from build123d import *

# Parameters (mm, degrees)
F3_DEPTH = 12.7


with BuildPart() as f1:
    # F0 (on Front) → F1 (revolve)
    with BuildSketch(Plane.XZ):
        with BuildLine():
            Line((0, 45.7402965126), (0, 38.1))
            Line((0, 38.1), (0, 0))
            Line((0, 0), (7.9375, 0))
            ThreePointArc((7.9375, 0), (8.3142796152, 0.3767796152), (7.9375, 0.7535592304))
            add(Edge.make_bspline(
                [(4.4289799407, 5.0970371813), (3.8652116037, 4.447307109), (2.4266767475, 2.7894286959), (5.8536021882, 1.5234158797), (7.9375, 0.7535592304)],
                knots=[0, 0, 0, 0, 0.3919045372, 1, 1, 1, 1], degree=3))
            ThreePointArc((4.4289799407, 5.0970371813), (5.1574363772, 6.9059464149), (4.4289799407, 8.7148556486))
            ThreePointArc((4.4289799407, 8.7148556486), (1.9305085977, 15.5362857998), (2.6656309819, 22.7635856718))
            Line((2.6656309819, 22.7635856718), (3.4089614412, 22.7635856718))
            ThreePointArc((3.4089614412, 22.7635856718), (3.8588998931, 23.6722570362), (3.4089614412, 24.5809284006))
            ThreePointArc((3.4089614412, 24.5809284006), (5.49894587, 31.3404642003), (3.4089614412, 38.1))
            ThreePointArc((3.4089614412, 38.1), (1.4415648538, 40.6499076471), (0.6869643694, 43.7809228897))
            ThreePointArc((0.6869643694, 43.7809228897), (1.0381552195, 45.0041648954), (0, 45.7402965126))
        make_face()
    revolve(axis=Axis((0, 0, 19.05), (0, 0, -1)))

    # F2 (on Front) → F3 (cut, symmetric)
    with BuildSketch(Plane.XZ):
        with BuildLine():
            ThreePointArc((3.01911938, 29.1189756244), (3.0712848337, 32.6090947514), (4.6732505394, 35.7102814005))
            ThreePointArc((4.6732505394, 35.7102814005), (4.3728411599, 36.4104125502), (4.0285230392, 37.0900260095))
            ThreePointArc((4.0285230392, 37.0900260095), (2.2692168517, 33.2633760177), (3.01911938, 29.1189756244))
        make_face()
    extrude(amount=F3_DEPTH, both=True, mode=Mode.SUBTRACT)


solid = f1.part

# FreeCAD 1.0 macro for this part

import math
import FreeCAD as App
import Part
import Sketcher

V = App.Vector
Q = App.Units.Quantity

doc = App.newDocument("Part")
body = doc.addObject("PartDesign::Body", "Body")

# Sketch on XZ plane
sketch1 = body.newObject("Sketcher::SketchObject", "Sketch")
sketch1.AttachmentSupport = (doc.getObject("XZ_Plane"), [""])
sketch1.MapMode = "FlatFace"
sketch1.addGeometry(Part.LineSegment(V(0, 45.740297, 0), V(0, 0, 0)), False)
sketch1.addGeometry(Part.LineSegment(V(0, 0, 0), V(7.9375, 0, 0)), False)
sketch1.addGeometry(Part.ArcOfCircle(Part.Circle(V(7.9375, 0.37678, 0), V(0, 0, 1), 0.37678), math.radians(-90), math.radians(90)), False)
sketch1.addGeometry(Part.BSplineCurve([V(4.42898, 5.097037, 0), V(3.865212, 4.447307, 0), V(2.426677, 2.789429, 0), V(5.853602, 1.523416, 0), V(7.9375, 0.753559, 0)], [4, 1, 4], [0, 0.391904537, 1], False, 3, [1, 1, 1, 1, 1], False), False)
sketch1.addGeometry(Part.ArcOfCircle(Part.Circle(V(2.547259, 6.905946, 0), V(0, 0, 1), 2.610178), math.radians(-43.869766), math.radians(43.869766)), False)
sketch1.addGeometry(Part.ArcOfCircle(Part.Circle(V(17.997999, 17.553023, 0), V(0, 0, 1), 16.193563), math.radians(161.230148), math.radians(213.07817)), False)
sketch1.addGeometry(Part.LineSegment(V(2.665631, 22.763586, 0), V(3.408961, 22.763586, 0)), False)
sketch1.addGeometry(Part.ArcOfCircle(Part.Circle(V(2.716379, 23.672257, 0), V(0, 0, 1), 1.142521), math.radians(-52.68562), math.radians(52.68562)), False)
sketch1.addGeometry(Part.ArcOfCircle(Part.Circle(V(-6.477067, 31.340464, 0), V(0, 0, 1), 11.976012), math.radians(-34.362227), math.radians(34.362227)), False)
sketch1.addGeometry(Part.ArcOfCircle(Part.Circle(V(8.397342, 43.982747, 0), V(0, 0, 1), 7.713019), math.radians(-178.500585), math.radians(-130.296874)), False)
sketch1.addGeometry(Part.ArcOfCircle(Part.Circle(V(0, 44.640183, 0), V(0, 0, 1), 1.100113), math.radians(-51.358252), math.radians(90)), False)
sketch1.addConstraint(Sketcher.Constraint("Block", 3))
sketch1.addConstraint(Sketcher.Constraint("Coincident", 0, 2, 1, 1))
sketch1.addConstraint(Sketcher.Constraint("Tangent", 1, 2, 2, 1))
sketch1.addConstraint(Sketcher.Constraint("Coincident", 2, 2, 3, 2))
sketch1.addConstraint(Sketcher.Constraint("Coincident", 3, 1, 4, 1))
sketch1.addConstraint(Sketcher.Constraint("Coincident", 4, 2, 5, 2))
sketch1.addConstraint(Sketcher.Constraint("Coincident", 5, 1, 6, 1))
sketch1.addConstraint(Sketcher.Constraint("Coincident", 6, 2, 7, 1))
sketch1.addConstraint(Sketcher.Constraint("Coincident", 7, 2, 8, 1))
sketch1.addConstraint(Sketcher.Constraint("Coincident", 8, 2, 9, 2))
sketch1.addConstraint(Sketcher.Constraint("Coincident", 9, 1, 10, 1))
sketch1.addConstraint(Sketcher.Constraint("Coincident", 10, 2, 0, 1))
sketch1.addConstraint(Sketcher.Constraint("Vertical", 0))
sketch1.addConstraint(Sketcher.Constraint("Horizontal", 1))
sketch1.addConstraint(Sketcher.Constraint("Horizontal", 6))
sketch1.addConstraint(Sketcher.Constraint("Coincident", 0, 2, -1, 1))
sketch1.addConstraint(Sketcher.Constraint("PointOnObject", 10, 3, -2))
sketch1.addConstraint(Sketcher.Constraint("Vertical", 1, 2, 2, 2))
sketch1.addConstraint(Sketcher.Constraint("Vertical", 6, 2, 7, 2))
sketch1.addConstraint(Sketcher.Constraint("Vertical", 7, 2, 8, 2))
sketch1.addConstraint(Sketcher.Constraint("DistanceY", -1, 1, 8, 2, Q("1.5 in")))
sketch1.addConstraint(Sketcher.Constraint("Radius", 7, 1.142521))
sketch1.addConstraint(Sketcher.Constraint("Radius", 9, 7.713019))
sketch1.addConstraint(Sketcher.Constraint("Radius", 4, 2.610178))
sketch1.addConstraint(Sketcher.Constraint("Radius", 5, 16.193563))
sketch1.addConstraint(Sketcher.Constraint("Radius", 8, 11.976012))
sketch1.addConstraint(Sketcher.Constraint("Radius", 10, 1.100113))
sketch1.addConstraint(Sketcher.Constraint("DistanceY", 4, 3, 10, 3, Q("1.4855999 in")))
sketch1.addConstraint(Sketcher.Constraint("DistanceX", 6, 1, 6, 2, 0.74333))
sketch1.addConstraint(Sketcher.Constraint("DistanceX", -1, 1, 5, 3, 17.997999))
sketch1.addConstraint(Sketcher.Constraint("DistanceY", 4, 3, 9, 3, 37.076801))
sketch1.addConstraint(Sketcher.Constraint("DistanceY", 0, 2, 0, 1, 45.740297))
sketch1.addConstraint(Sketcher.Constraint("DistanceX", -1, 1, 7, 3, 2.716379))
sketch1.addConstraint(Sketcher.Constraint("DistanceX", -1, 1, 4, 2, 4.42898))
sketch1.addConstraint(Sketcher.Constraint("DistanceX", -1, 1, 5, 1, 2.665631))
revolution = body.newObject("PartDesign::Revolution", "Revolution")
revolution.Profile = sketch1
revolution.ReferenceAxis = (sketch1, ["V_Axis"])
revolution.Angle = 360

# Sketch on XZ plane
sketch2 = body.newObject("Sketcher::SketchObject", "Sketch001")
sketch2.AttachmentSupport = (doc.getObject("XZ_Plane"), [""])
sketch2.MapMode = "FlatFace"
sketch2.addGeometry(Part.ArcOfCircle(Part.Circle(V(10.5, 30.8, 0), V(0, 0, 1), 7.6), math.radians(139), math.radians(192)), False)
sketch2.addGeometry(Part.ArcOfCircle(Part.Circle(V(-6.5, 31.3, 0), V(0, 0, 1), 12), math.radians(21.4), math.radians(28.69)), False)
sketch2.addGeometry(Part.ArcOfCircle(Part.Circle(V(9.2, 32.4, 0), V(0, 0, 1), 7), math.radians(138), math.radians(208)), False)
sketch2.addConstraint(Sketcher.Constraint("Coincident", 0, 1, 1, 1))
sketch2.addConstraint(Sketcher.Constraint("Coincident", 1, 2, 2, 1))
sketch2.addConstraint(Sketcher.Constraint("Coincident", 2, 2, 0, 2))
sketch2.addConstraint(Sketcher.Constraint("Radius", 0, 7.624992))
sketch2.addConstraint(Sketcher.Constraint("Radius", 1, 11.976012))
sketch2.addConstraint(Sketcher.Constraint("Radius", 2, 7.013314))
sketch2.addConstraint(Sketcher.Constraint("DistanceY", -1, 1, 2, 3, 32.382291))
sketch2.addConstraint(Sketcher.Constraint("DistanceX", -1, 1, 0, 1, 4.673251))
sketch2.addConstraint(Sketcher.Constraint("DistanceY", -1, 1, 0, 1, 35.710281))
sketch2.addConstraint(Sketcher.Constraint("DistanceX", -1, 1, 2, 2, 3.019119))
sketch2.addConstraint(Sketcher.Constraint("DistanceY", 0, 3, 1, 3, 0.587359))
sketch2.addConstraint(Sketcher.Constraint("DistanceX", 2, 3, 0, 3, 1.239981))
pocket1 = body.newObject("PartDesign::Pocket", "Pocket")
pocket1.Profile = sketch2
pocket1.Length = Q("1 in")
pocket1.Midplane = True

doc.recompute()
